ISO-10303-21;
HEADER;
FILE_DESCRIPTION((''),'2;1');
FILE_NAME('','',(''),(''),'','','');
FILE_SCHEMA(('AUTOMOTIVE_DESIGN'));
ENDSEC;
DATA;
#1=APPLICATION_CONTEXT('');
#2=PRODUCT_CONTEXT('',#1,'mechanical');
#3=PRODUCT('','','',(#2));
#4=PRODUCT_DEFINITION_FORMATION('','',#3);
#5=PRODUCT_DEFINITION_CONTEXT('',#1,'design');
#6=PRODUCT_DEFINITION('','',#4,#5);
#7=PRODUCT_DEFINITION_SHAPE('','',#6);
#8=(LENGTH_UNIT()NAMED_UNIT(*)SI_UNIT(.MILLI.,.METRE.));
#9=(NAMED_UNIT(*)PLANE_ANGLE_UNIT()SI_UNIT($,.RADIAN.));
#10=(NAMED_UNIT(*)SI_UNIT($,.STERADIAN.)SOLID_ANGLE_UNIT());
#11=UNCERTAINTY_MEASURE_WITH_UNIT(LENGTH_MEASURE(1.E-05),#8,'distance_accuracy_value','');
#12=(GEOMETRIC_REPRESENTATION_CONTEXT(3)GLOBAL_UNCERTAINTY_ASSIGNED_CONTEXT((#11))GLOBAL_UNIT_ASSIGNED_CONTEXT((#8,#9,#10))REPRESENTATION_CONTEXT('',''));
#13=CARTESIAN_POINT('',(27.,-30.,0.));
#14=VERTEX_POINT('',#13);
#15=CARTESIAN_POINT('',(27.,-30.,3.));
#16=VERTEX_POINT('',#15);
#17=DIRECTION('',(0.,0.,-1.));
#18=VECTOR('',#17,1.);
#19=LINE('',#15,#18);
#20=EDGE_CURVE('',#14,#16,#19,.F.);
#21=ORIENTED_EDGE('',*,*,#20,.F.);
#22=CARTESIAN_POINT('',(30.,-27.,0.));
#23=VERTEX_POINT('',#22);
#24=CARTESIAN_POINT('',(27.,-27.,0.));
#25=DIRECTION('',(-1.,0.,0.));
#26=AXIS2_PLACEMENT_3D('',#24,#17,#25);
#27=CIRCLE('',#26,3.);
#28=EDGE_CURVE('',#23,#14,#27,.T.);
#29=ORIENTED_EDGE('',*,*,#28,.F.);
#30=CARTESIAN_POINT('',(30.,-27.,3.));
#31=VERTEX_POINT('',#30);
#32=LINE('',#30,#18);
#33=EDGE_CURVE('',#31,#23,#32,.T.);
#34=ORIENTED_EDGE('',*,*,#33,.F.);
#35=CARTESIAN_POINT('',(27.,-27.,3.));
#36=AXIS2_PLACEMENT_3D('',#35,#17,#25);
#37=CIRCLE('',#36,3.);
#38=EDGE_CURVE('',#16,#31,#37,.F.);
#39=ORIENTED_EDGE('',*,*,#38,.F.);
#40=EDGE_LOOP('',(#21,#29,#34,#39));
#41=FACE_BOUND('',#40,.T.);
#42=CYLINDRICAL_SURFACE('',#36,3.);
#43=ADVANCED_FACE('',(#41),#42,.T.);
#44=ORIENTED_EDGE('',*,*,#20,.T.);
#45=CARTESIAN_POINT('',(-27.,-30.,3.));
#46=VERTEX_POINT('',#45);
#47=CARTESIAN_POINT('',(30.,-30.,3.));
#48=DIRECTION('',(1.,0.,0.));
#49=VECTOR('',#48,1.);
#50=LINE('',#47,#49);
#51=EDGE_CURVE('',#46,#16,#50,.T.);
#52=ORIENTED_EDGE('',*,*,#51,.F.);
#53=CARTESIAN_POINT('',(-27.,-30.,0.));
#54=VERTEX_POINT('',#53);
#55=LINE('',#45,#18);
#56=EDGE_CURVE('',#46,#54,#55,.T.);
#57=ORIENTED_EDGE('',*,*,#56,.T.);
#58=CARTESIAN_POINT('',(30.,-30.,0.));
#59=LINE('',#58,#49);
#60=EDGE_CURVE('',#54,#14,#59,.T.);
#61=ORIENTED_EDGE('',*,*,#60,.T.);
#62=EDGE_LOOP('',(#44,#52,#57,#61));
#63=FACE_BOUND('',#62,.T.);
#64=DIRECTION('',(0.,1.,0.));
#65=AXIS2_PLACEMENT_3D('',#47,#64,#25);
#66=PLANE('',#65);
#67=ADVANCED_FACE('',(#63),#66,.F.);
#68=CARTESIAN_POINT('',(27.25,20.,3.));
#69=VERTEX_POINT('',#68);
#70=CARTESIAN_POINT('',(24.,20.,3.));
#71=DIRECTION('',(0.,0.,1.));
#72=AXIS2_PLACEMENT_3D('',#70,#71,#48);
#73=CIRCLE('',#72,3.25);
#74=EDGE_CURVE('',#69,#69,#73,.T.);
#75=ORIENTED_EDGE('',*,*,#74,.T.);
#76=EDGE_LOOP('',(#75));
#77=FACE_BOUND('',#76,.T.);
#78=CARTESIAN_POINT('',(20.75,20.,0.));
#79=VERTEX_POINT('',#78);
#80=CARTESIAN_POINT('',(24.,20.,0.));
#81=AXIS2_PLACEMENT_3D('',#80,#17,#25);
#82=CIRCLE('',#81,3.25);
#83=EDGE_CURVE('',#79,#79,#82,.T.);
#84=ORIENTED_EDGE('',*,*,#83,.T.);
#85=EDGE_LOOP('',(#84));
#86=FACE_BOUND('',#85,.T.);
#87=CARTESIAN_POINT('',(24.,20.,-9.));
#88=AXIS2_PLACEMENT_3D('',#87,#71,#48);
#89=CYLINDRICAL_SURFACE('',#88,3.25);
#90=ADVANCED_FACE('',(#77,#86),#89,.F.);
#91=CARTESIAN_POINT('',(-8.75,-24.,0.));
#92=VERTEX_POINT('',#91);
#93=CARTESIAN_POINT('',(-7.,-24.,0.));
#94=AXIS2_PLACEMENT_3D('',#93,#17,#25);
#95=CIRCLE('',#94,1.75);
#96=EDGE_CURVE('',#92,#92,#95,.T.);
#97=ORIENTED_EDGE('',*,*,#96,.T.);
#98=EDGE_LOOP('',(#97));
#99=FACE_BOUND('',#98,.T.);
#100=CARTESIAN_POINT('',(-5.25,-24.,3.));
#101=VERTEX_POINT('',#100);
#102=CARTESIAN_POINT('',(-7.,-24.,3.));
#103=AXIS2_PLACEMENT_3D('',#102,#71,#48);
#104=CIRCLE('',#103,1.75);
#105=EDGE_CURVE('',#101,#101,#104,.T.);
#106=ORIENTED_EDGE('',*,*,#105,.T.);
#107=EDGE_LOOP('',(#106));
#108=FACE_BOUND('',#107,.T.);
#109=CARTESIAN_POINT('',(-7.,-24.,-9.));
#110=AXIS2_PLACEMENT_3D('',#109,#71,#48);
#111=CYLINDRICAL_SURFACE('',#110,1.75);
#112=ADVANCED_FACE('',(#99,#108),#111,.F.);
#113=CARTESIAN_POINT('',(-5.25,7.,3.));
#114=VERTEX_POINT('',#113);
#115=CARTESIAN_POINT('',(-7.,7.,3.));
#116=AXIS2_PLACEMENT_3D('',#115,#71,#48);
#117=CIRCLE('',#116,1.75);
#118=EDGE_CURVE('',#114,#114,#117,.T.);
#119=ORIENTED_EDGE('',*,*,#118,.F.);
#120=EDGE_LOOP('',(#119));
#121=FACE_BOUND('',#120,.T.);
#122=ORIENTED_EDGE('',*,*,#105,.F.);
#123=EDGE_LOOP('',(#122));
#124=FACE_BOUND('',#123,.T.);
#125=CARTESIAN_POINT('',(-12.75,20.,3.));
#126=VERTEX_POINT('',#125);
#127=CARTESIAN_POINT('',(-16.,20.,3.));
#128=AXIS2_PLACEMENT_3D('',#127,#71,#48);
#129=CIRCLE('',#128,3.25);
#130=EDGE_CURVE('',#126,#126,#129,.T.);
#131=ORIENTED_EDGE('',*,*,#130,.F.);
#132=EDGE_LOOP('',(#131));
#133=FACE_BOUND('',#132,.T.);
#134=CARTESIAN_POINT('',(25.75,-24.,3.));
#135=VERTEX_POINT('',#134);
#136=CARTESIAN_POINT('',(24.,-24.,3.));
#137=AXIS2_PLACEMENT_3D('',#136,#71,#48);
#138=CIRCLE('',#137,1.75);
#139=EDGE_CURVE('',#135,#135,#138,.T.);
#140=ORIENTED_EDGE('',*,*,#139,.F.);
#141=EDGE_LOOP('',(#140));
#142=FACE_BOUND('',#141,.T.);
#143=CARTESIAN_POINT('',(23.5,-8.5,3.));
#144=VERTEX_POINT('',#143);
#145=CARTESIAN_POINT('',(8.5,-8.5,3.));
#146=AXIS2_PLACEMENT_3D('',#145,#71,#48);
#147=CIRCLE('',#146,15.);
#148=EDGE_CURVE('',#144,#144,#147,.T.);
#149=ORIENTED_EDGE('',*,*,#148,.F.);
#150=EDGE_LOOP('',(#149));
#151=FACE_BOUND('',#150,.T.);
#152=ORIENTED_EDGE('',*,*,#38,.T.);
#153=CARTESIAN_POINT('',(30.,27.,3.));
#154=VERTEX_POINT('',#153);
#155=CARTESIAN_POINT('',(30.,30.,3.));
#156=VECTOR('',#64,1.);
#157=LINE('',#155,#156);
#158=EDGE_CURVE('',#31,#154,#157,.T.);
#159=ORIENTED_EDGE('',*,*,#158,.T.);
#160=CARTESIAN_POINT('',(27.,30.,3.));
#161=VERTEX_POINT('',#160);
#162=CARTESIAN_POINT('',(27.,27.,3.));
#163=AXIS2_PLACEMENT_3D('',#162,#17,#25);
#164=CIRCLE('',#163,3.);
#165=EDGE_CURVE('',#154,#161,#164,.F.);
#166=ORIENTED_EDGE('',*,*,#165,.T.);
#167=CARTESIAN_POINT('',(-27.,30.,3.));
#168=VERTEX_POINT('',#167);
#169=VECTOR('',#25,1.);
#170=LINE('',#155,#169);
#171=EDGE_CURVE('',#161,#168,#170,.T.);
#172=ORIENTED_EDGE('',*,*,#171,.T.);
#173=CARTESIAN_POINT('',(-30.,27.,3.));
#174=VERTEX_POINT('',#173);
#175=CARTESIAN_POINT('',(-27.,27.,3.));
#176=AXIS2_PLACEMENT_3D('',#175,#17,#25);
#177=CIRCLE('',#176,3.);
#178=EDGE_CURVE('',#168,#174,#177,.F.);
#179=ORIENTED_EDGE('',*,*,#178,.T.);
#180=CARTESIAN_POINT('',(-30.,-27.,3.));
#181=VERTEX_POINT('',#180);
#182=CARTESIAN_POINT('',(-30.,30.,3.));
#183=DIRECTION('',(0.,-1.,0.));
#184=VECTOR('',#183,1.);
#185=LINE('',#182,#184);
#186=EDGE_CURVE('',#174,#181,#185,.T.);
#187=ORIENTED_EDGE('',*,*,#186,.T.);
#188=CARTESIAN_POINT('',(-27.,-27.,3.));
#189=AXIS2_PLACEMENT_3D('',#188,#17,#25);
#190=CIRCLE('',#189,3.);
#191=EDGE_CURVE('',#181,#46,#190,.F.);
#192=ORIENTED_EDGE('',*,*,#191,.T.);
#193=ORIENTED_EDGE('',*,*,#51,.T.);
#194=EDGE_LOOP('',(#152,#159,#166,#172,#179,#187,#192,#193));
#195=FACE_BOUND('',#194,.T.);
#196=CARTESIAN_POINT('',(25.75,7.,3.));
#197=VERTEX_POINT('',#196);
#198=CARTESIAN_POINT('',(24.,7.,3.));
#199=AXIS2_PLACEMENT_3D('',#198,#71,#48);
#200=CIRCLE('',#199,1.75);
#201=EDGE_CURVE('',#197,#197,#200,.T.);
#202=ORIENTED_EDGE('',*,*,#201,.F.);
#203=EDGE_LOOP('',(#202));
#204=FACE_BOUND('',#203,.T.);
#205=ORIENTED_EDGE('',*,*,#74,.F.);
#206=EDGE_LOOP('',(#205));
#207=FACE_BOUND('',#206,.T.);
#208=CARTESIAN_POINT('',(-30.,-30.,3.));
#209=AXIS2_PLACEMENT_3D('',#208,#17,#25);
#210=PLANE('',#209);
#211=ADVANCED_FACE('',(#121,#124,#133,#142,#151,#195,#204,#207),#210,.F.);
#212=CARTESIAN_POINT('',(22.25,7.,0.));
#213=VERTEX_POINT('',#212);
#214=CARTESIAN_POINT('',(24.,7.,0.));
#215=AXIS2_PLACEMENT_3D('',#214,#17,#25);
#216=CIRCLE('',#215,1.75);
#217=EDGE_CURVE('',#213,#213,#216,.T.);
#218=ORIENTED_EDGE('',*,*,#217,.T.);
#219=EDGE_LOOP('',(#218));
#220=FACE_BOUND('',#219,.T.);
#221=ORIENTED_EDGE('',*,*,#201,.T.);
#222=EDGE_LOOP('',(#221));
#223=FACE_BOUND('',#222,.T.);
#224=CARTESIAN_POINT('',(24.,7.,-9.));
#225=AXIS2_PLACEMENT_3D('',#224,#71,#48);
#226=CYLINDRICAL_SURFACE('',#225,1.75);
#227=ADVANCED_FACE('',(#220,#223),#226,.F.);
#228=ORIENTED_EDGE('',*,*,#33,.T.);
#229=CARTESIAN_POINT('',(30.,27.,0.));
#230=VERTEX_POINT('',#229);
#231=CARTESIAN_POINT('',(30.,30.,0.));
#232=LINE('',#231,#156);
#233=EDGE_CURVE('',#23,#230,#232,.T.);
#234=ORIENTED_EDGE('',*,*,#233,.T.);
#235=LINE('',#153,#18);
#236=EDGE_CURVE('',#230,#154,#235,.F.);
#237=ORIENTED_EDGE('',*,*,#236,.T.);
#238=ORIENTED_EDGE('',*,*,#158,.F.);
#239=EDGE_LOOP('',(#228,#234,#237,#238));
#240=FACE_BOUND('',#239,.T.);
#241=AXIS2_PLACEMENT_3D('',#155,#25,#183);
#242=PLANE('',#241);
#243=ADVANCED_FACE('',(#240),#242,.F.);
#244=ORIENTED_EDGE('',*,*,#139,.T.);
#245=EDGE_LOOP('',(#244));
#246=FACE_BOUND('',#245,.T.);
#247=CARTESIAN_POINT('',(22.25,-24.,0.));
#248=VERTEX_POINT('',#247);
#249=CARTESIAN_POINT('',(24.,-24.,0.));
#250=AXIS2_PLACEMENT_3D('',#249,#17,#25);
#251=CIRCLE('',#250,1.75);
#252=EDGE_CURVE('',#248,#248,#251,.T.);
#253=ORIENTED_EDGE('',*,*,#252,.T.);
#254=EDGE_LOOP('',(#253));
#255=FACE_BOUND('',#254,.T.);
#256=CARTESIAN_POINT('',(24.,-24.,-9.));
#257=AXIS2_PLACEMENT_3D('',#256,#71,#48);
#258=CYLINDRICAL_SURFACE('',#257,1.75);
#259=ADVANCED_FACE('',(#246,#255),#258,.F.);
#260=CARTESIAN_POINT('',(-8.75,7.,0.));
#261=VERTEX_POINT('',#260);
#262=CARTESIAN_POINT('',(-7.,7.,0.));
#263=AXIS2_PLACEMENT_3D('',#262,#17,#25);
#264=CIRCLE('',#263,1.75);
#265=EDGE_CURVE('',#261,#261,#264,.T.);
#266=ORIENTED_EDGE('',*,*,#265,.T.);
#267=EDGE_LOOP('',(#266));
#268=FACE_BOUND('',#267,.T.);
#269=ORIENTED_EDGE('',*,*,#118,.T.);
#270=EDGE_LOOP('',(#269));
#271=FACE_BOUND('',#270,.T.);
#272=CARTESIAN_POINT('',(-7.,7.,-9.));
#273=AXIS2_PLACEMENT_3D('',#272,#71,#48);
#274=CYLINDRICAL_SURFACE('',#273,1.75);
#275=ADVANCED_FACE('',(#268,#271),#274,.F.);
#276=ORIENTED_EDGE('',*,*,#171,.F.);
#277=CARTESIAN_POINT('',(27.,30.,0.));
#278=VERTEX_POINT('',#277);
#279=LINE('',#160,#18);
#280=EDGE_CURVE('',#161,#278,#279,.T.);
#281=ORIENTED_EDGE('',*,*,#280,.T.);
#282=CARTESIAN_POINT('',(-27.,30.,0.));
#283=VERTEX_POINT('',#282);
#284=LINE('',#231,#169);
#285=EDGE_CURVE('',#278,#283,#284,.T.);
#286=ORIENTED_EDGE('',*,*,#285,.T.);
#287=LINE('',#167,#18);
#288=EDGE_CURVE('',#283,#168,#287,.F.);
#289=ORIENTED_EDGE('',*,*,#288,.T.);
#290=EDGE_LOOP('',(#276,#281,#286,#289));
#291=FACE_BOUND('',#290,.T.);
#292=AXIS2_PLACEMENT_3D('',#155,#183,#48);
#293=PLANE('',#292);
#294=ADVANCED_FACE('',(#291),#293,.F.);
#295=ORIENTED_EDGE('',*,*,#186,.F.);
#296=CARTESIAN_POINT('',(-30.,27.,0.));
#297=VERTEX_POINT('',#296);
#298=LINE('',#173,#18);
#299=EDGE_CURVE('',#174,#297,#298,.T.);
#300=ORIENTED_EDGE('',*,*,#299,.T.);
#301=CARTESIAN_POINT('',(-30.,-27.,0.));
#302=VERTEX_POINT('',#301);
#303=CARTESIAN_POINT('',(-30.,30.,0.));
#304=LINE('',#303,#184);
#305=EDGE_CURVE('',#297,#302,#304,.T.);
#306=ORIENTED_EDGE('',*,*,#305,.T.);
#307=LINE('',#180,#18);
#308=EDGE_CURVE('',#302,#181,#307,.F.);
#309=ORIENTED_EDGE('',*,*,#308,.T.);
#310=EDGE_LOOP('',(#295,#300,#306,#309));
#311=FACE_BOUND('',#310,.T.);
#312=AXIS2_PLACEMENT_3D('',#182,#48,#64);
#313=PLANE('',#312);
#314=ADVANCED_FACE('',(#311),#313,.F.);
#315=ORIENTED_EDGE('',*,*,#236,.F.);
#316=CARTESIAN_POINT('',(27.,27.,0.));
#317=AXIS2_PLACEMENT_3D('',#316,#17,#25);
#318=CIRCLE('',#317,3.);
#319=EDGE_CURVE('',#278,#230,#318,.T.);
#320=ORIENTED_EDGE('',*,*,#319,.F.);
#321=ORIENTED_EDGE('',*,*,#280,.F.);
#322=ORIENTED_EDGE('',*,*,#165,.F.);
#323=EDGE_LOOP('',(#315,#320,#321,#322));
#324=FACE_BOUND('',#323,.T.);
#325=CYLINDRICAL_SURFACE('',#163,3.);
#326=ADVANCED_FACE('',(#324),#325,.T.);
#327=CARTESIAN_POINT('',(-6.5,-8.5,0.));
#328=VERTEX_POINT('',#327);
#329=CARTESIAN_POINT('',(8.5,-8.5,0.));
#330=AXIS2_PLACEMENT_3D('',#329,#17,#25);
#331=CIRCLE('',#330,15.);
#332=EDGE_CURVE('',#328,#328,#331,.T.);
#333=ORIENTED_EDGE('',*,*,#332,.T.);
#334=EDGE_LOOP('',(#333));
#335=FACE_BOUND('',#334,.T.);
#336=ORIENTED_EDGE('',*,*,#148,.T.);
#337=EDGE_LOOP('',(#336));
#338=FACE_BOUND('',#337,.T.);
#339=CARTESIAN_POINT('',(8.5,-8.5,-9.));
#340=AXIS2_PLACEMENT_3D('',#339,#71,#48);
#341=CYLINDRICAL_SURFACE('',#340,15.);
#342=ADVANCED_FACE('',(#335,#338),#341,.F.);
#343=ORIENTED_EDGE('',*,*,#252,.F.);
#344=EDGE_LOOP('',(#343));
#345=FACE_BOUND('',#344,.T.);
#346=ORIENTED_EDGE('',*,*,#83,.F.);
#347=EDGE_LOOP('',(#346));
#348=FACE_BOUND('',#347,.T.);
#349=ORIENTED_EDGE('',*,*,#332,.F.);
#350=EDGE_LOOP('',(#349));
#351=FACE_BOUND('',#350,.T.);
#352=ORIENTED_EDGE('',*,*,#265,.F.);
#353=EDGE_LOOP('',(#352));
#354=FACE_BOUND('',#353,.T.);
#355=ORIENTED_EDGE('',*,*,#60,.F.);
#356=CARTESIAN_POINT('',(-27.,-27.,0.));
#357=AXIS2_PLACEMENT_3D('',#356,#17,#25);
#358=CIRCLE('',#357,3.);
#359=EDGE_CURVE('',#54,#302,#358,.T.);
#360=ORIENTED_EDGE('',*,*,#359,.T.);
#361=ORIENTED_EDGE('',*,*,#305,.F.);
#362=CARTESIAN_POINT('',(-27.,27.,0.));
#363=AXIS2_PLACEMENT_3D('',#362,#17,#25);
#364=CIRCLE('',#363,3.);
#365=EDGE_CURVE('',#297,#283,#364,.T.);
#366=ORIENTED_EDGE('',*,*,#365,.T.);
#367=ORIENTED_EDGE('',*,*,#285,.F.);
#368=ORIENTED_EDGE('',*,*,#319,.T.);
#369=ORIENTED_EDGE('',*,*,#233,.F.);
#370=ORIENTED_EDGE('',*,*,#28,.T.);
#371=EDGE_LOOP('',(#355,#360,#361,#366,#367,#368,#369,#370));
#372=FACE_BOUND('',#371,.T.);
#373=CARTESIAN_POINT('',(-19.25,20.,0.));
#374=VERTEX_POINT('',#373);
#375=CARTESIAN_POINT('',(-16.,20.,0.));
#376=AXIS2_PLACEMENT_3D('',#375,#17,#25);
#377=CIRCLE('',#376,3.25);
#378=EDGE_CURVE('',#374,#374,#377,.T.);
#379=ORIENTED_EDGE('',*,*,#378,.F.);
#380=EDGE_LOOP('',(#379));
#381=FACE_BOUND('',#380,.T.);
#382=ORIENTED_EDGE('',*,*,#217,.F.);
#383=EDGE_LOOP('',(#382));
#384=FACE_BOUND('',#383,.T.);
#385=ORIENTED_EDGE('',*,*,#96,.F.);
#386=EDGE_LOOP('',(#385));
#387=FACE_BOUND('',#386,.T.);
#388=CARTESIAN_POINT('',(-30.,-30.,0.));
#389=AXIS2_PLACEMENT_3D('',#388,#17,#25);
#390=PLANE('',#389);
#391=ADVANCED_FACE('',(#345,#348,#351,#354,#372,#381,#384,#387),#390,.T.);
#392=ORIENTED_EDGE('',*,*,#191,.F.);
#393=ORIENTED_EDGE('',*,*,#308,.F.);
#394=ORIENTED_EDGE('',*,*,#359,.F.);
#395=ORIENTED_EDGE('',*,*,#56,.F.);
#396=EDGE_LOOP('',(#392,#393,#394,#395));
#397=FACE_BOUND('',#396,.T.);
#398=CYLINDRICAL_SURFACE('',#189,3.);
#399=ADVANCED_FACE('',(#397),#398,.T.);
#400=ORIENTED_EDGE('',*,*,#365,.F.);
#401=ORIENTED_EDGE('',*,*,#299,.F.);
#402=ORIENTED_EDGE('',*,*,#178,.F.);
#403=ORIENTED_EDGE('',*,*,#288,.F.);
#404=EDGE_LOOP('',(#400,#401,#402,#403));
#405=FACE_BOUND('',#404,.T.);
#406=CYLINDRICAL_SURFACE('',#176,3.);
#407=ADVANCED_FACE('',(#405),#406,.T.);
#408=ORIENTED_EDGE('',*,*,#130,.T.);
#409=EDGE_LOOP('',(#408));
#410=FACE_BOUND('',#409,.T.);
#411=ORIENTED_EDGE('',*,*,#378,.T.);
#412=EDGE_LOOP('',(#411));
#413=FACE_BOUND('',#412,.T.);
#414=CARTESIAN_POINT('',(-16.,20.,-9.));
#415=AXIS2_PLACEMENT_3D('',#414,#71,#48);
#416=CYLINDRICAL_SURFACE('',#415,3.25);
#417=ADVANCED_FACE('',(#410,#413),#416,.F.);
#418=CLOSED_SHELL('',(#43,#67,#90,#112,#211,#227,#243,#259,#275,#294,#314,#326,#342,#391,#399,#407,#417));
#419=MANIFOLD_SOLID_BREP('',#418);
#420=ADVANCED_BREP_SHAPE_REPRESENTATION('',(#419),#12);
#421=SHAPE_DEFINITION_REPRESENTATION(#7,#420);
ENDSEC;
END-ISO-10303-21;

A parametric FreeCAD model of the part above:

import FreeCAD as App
import Part
import Sketcher
from FreeCAD import Vector


def edges_at(feature, points):
    """Names of the edges that pass closest to the given points."""
    edges = feature.Shape.Edges
    near = lambda p: min(range(len(edges)), key=lambda i: edges[i].distToShape(Part.Vertex(*p))[0])
    return sorted({f"Edge{near(p) + 1}" for p in points})


def add_polygon(sketch, points):
    """Adds a closed chain of lines whose ends are joined by coincident constraints."""
    first, n = sketch.GeometryCount, len(points)
    for a, b in zip(points, points[1:] + points[:1]):
        sketch.addGeometry(Part.LineSegment(App.Vector(*a, 0), App.Vector(*b, 0)), False)
    for i in range(n):
        sketch.addConstraint(Sketcher.Constraint("Coincident", first + i, 2, first + (i + 1) % n, 1))

doc = App.newDocument("Part")
body = doc.addObject("PartDesign::Body", "Body")

# Sketch on XY plane
sketch1 = body.newObject("Sketcher::SketchObject", "Sketch")
sketch1.AttachmentSupport = (doc.getObject("XY_Plane"), [""])
sketch1.MapMode = "FlatFace"
add_polygon(sketch1, [(-30, 30), (-30, -30), (30, -30), (30, 30)])  # lines 0-3
sketch1.addConstraint([
    Sketcher.Constraint("Vertical", 0),
    Sketcher.Constraint("Horizontal", 1),
    Sketcher.Constraint("Vertical", 2),
    Sketcher.Constraint("Horizontal", 3),
    Sketcher.Constraint("Symmetric", 0, 2, 2, 2, -1, 1),
    Sketcher.Constraint("Equal", 3, 0),
    Sketcher.Constraint("DistanceX", 1, 1, 1, 2, 60.0),
])
pad1 = body.newObject("PartDesign::Pad", "Pad")
pad1.Profile = sketch1
pad1.Length = 3
doc.recompute()

fillet = body.newObject("PartDesign::Fillet", "Fillet")
fillet.Base = (pad1, edges_at(pad1, [
    (-30, 30, 1.5),
    (30, 30, 1.5),
    (30, -30, 1.5),
    (-30, -30, 1.5),
]))
fillet.Radius = 3

# Sketch on XY plane
sketch2 = body.newObject("Sketcher::SketchObject", "Sketch001")
sketch2.AttachmentSupport = (doc.getObject("XY_Plane"), [""])
sketch2.MapMode = "FlatFace"
sketch2.AttachmentOffset = App.Placement(Vector(0, 0, 3), App.Rotation())
sketch2.addGeometry([
    Part.Circle(Vector(-7, -24, 0), Vector(0, 0, 1), 1.75),  # 0
    Part.Circle(Vector(-7, 7, 0), Vector(0, 0, 1), 1.75),  # 1
    Part.Circle(Vector(24, 7, 0), Vector(0, 0, 1), 1.75),  # 2
    Part.Circle(Vector(24, -24, 0), Vector(0, 0, 1), 1.75),  # 3
    Part.Circle(Vector(24, 20, 0), Vector(0, 0, 1), 3.25),  # 4
    Part.Circle(Vector(-16, 20, 0), Vector(0, 0, 1), 3.25),  # 5
    Part.Circle(Vector(8.5, -8.5, 0), Vector(0, 0, 1), 15),  # 6
], False)
sketch2.addConstraint([
    Sketcher.Constraint("Equal", 0, 1),
    Sketcher.Constraint("Equal", 1, 2),
    Sketcher.Constraint("Equal", 2, 3),
    Sketcher.Constraint("Equal", 4, 5),
    Sketcher.Constraint("Horizontal", 1, 3, 2, 3),
    Sketcher.Constraint("Horizontal", 0, 3, 3, 3),
    Sketcher.Constraint("Horizontal", 4, 3, 5, 3),
    Sketcher.Constraint("Vertical", 0, 3, 1, 3),
    Sketcher.Constraint("Vertical", 2, 3, 3, 3),
    Sketcher.Constraint("Vertical", 3, 3, 4, 3),
    Sketcher.Constraint("Diameter", 6, 30.0),
    Sketcher.Constraint("Diameter", 0, 3.5),
    Sketcher.Constraint("Diameter", 4, 6.5),
    Sketcher.Constraint("DistanceX", 0, 3, -1, 1, 7.0),
    Sketcher.Constraint("DistanceY", 0, 3, -1, 1, 24.0),
    Sketcher.Constraint("DistanceY", -1, 1, 1, 3, 7.0),
    Sketcher.Constraint("DistanceX", -1, 1, 2, 3, 24.0),
    Sketcher.Constraint("DistanceY", -1, 1, 4, 3, 20.0),
    Sketcher.Constraint("DistanceX", 5, 3, -1, 1, 16.0),
    Sketcher.Constraint("DistanceX", -1, 1, 6, 3, 8.5),
    Sketcher.Constraint("DistanceY", 6, 3, -1, 1, 8.5),
])
pocket1 = body.newObject("PartDesign::Pocket", "Pocket")
pocket1.Profile = sketch2
pocket1.Length = 12

doc.recompute()
